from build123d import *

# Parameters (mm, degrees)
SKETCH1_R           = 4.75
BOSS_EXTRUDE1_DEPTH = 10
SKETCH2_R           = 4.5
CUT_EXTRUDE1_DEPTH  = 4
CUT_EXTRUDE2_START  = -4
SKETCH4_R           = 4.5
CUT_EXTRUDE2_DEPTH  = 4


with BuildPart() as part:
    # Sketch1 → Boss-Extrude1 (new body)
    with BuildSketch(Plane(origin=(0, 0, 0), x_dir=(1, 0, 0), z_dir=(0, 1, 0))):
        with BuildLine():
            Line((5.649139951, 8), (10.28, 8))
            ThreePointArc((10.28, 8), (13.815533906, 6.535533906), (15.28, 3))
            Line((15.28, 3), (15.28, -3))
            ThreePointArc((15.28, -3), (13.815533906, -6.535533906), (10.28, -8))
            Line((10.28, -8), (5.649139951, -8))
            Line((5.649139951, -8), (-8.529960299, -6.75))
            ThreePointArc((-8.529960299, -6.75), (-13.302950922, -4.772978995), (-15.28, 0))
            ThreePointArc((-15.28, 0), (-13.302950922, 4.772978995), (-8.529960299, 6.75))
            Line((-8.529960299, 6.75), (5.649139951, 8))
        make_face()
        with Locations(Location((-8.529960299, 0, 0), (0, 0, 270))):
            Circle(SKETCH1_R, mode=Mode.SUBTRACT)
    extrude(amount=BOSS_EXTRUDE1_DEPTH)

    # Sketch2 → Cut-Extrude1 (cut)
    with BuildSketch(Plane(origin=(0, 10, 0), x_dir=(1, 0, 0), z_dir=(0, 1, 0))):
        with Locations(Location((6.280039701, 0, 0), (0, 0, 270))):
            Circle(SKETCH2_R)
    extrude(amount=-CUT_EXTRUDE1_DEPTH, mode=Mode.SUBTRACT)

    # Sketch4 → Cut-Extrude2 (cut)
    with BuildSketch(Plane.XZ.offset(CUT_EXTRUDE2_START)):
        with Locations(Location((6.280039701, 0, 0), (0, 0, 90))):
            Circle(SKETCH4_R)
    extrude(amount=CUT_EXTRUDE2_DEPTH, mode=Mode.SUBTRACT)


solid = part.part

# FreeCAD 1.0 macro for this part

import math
import FreeCAD as App
import Part
import Sketcher
Q = App.Units.Quantity

doc = App.newDocument("Part")
body = doc.addObject("PartDesign::Body", "Body")

sketch1 = doc.addObject("Sketcher::SketchObject", "Sketch")
body.addObject(sketch1)
sketch1.AttachmentSupport = (doc.XZ_Plane, [""])
sketch1.MapMode = "FlatFace"
sketch1.addGeometry(Part.LineSegment(App.Vector(10.3, -8, 0), App.Vector(5.6, -8, 0)), False)
sketch1.addGeometry(Part.LineSegment(App.Vector(5.6, -8, 0), App.Vector(-8.5, -6.8, 0)), False)
sketch1.addGeometry(Part.ArcOfCircle(Part.Circle(App.Vector(-8.5, 0, 0), App.Vector(0, 0, 1), 6.8), math.radians(-180), math.radians(-90)), False)
sketch1.addGeometry(Part.ArcOfCircle(Part.Circle(App.Vector(-8.5, 0, 0), App.Vector(0, 0, 1), 6.8), math.radians(90), math.radians(180)), False)
sketch1.addGeometry(Part.LineSegment(App.Vector(-8.5, 6.8, 0), App.Vector(5.6, 8, 0)), False)
sketch1.addGeometry(Part.LineSegment(App.Vector(5.6, 8, 0), App.Vector(10.3, 8, 0)), False)
sketch1.addGeometry(Part.ArcOfCircle(Part.Circle(App.Vector(10.3, 3, 0), App.Vector(0, 0, 1), 5), math.radians(0), math.radians(90)), False)
sketch1.addGeometry(Part.LineSegment(App.Vector(15.3, 3, 0), App.Vector(15.3, -3, 0)), False)
sketch1.addGeometry(Part.ArcOfCircle(Part.Circle(App.Vector(10.3, -3, 0), App.Vector(0, 0, 1), 5), math.radians(-90), math.radians(0)), False)
sketch1.addGeometry(Part.Circle(App.Vector(-8.5, 0, 0), App.Vector(0, 0, 1), 4.8), False)
sketch1.addConstraint(Sketcher.Constraint("Coincident", 0, 2, 1, 1))
sketch1.addConstraint(Sketcher.Constraint("Coincident", 1, 2, 2, 2))
sketch1.addConstraint(Sketcher.Constraint("Coincident", 2, 1, 3, 2))
sketch1.addConstraint(Sketcher.Constraint("Coincident", 3, 1, 4, 1))
sketch1.addConstraint(Sketcher.Constraint("Coincident", 4, 2, 5, 1))
sketch1.addConstraint(Sketcher.Constraint("Tangent", 5, 2, 6, 2))
sketch1.addConstraint(Sketcher.Constraint("Tangent", 6, 1, 7, 1))
sketch1.addConstraint(Sketcher.Constraint("Tangent", 7, 2, 8, 2))
sketch1.addConstraint(Sketcher.Constraint("Tangent", 8, 1, 0, 1))
sketch1.addConstraint(Sketcher.Constraint("Horizontal", 0))
sketch1.addConstraint(Sketcher.Constraint("Horizontal", 5))
sketch1.addConstraint(Sketcher.Constraint("Vertical", 7))
sketch1.addConstraint(Sketcher.Constraint("Equal", 2, 3))
sketch1.addConstraint(Sketcher.Constraint("Equal", 6, 8))
sketch1.addConstraint(Sketcher.Constraint("Symmetric", 1, 2, 3, 1, -1))
sketch1.addConstraint(Sketcher.Constraint("Symmetric", 0, 2, 4, 2, -1))
sketch1.addConstraint(Sketcher.Constraint("PointOnObject", 9, 3, -1))
sketch1.addConstraint(Sketcher.Constraint("PointOnObject", 2, 1, -1))
sketch1.addConstraint(Sketcher.Constraint("Vertical", 9, 3, 1, 2))
sketch1.addConstraint(Sketcher.Constraint("Radius", 6, Q("5 mm")))
sketch1.addConstraint(Sketcher.Constraint("Diameter", 9, Q("9.5 mm")))
sketch1.addConstraint(Sketcher.Constraint("DistanceY", 7, 2, 7, 1, Q("6 mm")))
sketch1.addConstraint(Sketcher.Constraint("DistanceY", 1, 2, 3, 1, Q("13.5 mm")))
sketch1.addConstraint(Sketcher.Constraint("DistanceX", -1, 1, 6, 3, Q("10.28 mm")))
sketch1.addConstraint(Sketcher.Constraint("DistanceX", 2, 1, -1, 1, Q("15.28 mm")))
sketch1.addConstraint(Sketcher.Constraint("Radius", 2, Q("6.75002 mm")))
sketch1.addConstraint(Sketcher.Constraint("DistanceX", 0, 2, 0, 1, Q("4.63086 mm")))
sketch1.addConstraint(Sketcher.Constraint("DistanceX", 9, 3, 0, 2, Q("14.1791 mm")))
pad1 = doc.addObject("PartDesign::Pad", "Pad")
body.addObject(pad1)
pad1.Profile = sketch1
pad1.Length = 10
pad1.Reversed = True

sketch2 = doc.addObject("Sketcher::SketchObject", "Sketch001")
body.addObject(sketch2)
sketch2.AttachmentSupport = (doc.XZ_Plane, [""])
sketch2.MapMode = "FlatFace"
sketch2.AttachmentOffset = App.Placement(App.Vector(0, 0, -10), App.Rotation())
sketch2.addGeometry(Part.Circle(App.Vector(6.3, 0, 0), App.Vector(0, 0, 1), 4.5), False)
sketch2.addConstraint(Sketcher.Constraint("PointOnObject", 0, 3, -1))
sketch2.addConstraint(Sketcher.Constraint("Diameter", 0, Q("9 mm")))
sketch2.addConstraint(Sketcher.Constraint("DistanceX", -1, 1, 0, 3, Q("6.28004 mm")))
pocket1 = doc.addObject("PartDesign::Pocket", "Pocket")
body.addObject(pocket1)
pocket1.Profile = sketch2
pocket1.Length = 4
pocket1.Reversed = True

sketch3 = doc.addObject("Sketcher::SketchObject", "Sketch002")
body.addObject(sketch3)
sketch3.AttachmentSupport = (doc.XZ_Plane, [""])
sketch3.MapMode = "FlatFace"
sketch3.AttachmentOffset = App.Placement(App.Vector(0, 0, -4), App.Rotation())
sketch3.addGeometry(Part.Circle(App.Vector(6.3, 0, 0), App.Vector(0, 0, 1), 4.5), False)
sketch3.addConstraint(Sketcher.Constraint("PointOnObject", 0, 3, -1))
sketch3.addConstraint(Sketcher.Constraint("Diameter", 0, Q("9 mm")))
sketch3.addConstraint(Sketcher.Constraint("DistanceX", -1, 1, 0, 3, Q("6.28004 mm")))
pocket2 = doc.addObject("PartDesign::Pocket", "Pocket001")
body.addObject(pocket2)
pocket2.Profile = sketch3
pocket2.Length = 4
pocket2.Reversed = True

doc.recompute()
